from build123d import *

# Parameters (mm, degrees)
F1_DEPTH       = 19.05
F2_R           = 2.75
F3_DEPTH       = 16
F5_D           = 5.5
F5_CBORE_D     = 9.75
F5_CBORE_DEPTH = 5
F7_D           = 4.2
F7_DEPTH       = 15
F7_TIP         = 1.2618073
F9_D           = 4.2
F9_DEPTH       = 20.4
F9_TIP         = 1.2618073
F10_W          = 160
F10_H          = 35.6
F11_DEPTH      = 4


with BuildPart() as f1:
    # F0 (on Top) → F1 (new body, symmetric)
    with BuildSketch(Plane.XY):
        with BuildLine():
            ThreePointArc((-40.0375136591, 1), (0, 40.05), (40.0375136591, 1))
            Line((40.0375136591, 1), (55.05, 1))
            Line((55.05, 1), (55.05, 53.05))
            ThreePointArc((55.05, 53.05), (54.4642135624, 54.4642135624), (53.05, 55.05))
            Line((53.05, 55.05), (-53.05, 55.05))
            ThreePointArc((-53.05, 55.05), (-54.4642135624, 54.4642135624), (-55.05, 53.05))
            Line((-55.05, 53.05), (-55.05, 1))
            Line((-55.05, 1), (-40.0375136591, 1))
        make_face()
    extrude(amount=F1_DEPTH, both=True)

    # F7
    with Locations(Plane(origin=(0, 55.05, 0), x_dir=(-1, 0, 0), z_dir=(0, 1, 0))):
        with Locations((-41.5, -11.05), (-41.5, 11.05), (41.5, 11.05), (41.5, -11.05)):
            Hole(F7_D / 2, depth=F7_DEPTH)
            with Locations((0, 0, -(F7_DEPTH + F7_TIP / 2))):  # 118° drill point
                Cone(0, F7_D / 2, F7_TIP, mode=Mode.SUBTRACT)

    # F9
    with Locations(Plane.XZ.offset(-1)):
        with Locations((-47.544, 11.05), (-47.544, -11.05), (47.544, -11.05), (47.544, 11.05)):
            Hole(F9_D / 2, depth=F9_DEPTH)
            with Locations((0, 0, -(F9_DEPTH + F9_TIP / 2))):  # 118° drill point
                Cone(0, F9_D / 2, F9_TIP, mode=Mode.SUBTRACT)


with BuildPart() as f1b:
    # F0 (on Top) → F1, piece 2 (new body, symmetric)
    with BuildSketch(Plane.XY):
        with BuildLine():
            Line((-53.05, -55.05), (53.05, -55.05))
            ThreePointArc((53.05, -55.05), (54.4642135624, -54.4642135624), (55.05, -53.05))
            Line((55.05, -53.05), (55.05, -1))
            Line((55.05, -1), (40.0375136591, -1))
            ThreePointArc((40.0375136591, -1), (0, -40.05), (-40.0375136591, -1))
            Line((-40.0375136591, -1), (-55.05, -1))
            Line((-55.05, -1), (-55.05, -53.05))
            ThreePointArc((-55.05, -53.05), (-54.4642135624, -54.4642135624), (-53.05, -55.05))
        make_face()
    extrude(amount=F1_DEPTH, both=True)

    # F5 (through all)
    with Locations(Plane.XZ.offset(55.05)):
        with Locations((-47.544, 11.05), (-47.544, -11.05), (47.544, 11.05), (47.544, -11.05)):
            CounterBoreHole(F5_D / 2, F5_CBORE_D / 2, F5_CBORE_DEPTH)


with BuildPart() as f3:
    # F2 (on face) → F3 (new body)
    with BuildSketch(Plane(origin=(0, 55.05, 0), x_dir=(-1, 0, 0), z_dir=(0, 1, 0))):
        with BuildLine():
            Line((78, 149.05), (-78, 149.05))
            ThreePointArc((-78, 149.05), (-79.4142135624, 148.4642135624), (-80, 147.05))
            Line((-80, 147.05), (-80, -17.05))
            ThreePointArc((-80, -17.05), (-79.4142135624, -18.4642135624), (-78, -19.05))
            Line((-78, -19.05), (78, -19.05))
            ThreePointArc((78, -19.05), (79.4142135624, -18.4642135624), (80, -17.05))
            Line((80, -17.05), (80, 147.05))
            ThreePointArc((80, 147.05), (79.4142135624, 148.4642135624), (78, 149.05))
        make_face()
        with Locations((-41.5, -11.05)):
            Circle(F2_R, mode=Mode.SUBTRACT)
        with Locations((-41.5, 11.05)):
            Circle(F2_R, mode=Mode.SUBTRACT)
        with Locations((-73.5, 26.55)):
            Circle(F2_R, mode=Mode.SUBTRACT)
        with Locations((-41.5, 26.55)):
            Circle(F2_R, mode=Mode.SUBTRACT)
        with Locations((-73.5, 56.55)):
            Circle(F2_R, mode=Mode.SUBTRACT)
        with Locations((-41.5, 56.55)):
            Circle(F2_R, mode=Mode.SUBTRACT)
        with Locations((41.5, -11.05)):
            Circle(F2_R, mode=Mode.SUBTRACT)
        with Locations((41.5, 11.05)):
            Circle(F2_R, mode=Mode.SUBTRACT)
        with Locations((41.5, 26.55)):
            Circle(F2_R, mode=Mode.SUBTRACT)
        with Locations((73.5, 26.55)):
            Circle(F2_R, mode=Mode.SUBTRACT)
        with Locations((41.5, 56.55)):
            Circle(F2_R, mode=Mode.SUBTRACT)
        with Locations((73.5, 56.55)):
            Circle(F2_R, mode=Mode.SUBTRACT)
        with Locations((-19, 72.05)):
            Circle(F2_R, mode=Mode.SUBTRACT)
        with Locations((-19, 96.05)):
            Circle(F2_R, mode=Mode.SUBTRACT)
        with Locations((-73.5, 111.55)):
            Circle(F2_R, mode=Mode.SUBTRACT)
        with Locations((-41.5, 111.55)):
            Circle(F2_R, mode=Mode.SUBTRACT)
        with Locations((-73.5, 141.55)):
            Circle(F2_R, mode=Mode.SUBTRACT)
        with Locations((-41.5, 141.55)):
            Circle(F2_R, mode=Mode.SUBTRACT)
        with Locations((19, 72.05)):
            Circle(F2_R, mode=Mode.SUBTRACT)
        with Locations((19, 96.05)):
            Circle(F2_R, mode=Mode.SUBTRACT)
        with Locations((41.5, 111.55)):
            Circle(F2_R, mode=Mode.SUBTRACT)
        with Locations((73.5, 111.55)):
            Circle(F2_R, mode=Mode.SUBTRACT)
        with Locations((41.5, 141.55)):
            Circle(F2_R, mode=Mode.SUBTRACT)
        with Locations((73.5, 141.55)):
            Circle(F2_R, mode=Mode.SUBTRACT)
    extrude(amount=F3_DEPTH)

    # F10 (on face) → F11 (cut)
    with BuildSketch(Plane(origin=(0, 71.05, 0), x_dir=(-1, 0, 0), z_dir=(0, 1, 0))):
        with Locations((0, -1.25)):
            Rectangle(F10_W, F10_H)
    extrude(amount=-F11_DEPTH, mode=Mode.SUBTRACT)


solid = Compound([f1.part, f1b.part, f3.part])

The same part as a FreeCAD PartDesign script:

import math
import FreeCAD as App
import Part
import Sketcher
from FreeCAD import Vector
Q = App.Units.Quantity

doc = App.newDocument("Part")
body = doc.addObject("PartDesign::Body", "Body")

sketch1 = body.newObject("Sketcher::SketchObject", "Sketch")
sketch1.AttachmentSupport = (doc.getObject("XY_Plane"), [""])
sketch1.MapMode = "FlatFace"
sketch1.addGeometry([
    Part.ArcOfCircle(Part.Circle(Vector(0, 0, 0), Vector(0, 0, 1), 40), math.radians(1), math.radians(179)),
    Part.LineSegment(Vector(40, 1, 0), Vector(55, 1, 0)),
    Part.LineSegment(Vector(55, 1, 0), Vector(55, 53, 0)),
    Part.ArcOfCircle(Part.Circle(Vector(53, 53, 0), Vector(0, 0, 1), 2), math.radians(0), math.radians(90)),
    Part.LineSegment(Vector(53, 55, 0), Vector(-53, 55, 0)),
    Part.ArcOfCircle(Part.Circle(Vector(-53, 53, 0), Vector(0, 0, 1), 2), math.radians(90), math.radians(180)),
    Part.LineSegment(Vector(-55, 53, 0), Vector(-55, 1, 0)),
    Part.LineSegment(Vector(-55, 1, 0), Vector(-40, 1, 0)),
], False)
sketch1.addConstraint([
    Sketcher.Constraint("Coincident", 0, 1, 1, 1),
    Sketcher.Constraint("Coincident", 1, 2, 2, 1),
    Sketcher.Constraint("Tangent", 2, 2, 3, 1),
    Sketcher.Constraint("Tangent", 3, 2, 4, 1),
    Sketcher.Constraint("Tangent", 4, 2, 5, 1),
    Sketcher.Constraint("Tangent", 5, 2, 6, 1),
    Sketcher.Constraint("Coincident", 6, 2, 7, 1),
    Sketcher.Constraint("Coincident", 7, 2, 0, 2),
    Sketcher.Constraint("Horizontal", 1),
    Sketcher.Constraint("Vertical", 2),
    Sketcher.Constraint("Horizontal", 4),
    Sketcher.Constraint("Vertical", 6),
    Sketcher.Constraint("Horizontal", 7),
    Sketcher.Constraint("Coincident", 0, 3, -1, 1),
    Sketcher.Constraint("Equal", 3, 5),
    Sketcher.Constraint("Symmetric", 1, 2, 6, 2, -2),
    Sketcher.Constraint("Radius", 3, Q("2 mm")),
    Sketcher.Constraint("Radius", 0, Q("40.05 mm")),
    Sketcher.Constraint("DistanceX", 4, 2, 4, 1, Q("106.1 mm")),
    Sketcher.Constraint("DistanceY", -1, 1, 0, 1, Q("1 mm")),
    Sketcher.Constraint("DistanceY", 2, 1, 2, 2, Q("52.05 mm")),
])
pad1 = body.newObject("PartDesign::Pad", "Pad")
pad1.Profile = sketch1
pad1.Length = 38.1
pad1.Midplane = True

sketch2 = body.newObject("Sketcher::SketchObject", "Sketch001")
sketch2.AttachmentSupport = (doc.getObject("XZ_Plane"), [""])
sketch2.MapMode = "FlatFace"
sketch2.AttachmentOffset = App.Placement(Vector(0, 0, -55.05), App.Rotation())
sketch2.addGeometry([
    Part.Circle(Vector(41.5, -11.1, 0), Vector(0, 0, 1), 2.1),
    Part.Circle(Vector(41.5, 11.1, 0), Vector(0, 0, 1), 2.1),
    Part.Circle(Vector(-41.5, 11.1, 0), Vector(0, 0, 1), 2.1),
    Part.Circle(Vector(-41.5, -11.1, 0), Vector(0, 0, 1), 2.1),
], False)
sketch2.addConstraint([
    Sketcher.Constraint("Equal", 0, 1),
    Sketcher.Constraint("Equal", 1, 2),
    Sketcher.Constraint("Equal", 2, 3),
    Sketcher.Constraint("Symmetric", 0, 3, 2, 3, -1, 1),
    Sketcher.Constraint("Symmetric", 1, 3, 3, 3, -1, 1),
    Sketcher.Constraint("Symmetric", 1, 3, 2, 3, -2),
    Sketcher.Constraint("Diameter", 0, Q("4.2 mm")),
    Sketcher.Constraint("DistanceX", 2, 3, 1, 3, Q("83 mm")),
    Sketcher.Constraint("DistanceY", 0, 3, 1, 3, Q("22.1 mm")),
])
doc.recompute()
hole = body.newObject("PartDesign::Hole", "Hole")
hole.Profile = sketch2
hole.ThreadType = "None"
hole.Diameter = 4.2
hole.DepthType = "Dimension"
hole.Depth = 15
hole.DrillPoint = "Angled"
hole.DrillPointAngle = 118
hole.Reversed = True

sketch3 = body.newObject("Sketcher::SketchObject", "Sketch002")
sketch3.AttachmentSupport = (doc.getObject("XZ_Plane"), [""])
sketch3.MapMode = "FlatFace"
sketch3.AttachmentOffset = App.Placement(Vector(0, 0, -1), App.Rotation())
sketch3.addGeometry([
    Part.Circle(Vector(-47.5, 11.1, 0), Vector(0, 0, 1), 2.1),
    Part.Circle(Vector(-47.5, -11.1, 0), Vector(0, 0, 1), 2.1),
    Part.Circle(Vector(47.5, -11.1, 0), Vector(0, 0, 1), 2.1),
    Part.Circle(Vector(47.5, 11.1, 0), Vector(0, 0, 1), 2.1),
], False)
sketch3.addConstraint([
    Sketcher.Constraint("Equal", 0, 1),
    Sketcher.Constraint("Equal", 1, 2),
    Sketcher.Constraint("Equal", 2, 3),
    Sketcher.Constraint("Symmetric", 0, 3, 2, 3, -1, 1),
    Sketcher.Constraint("Symmetric", 1, 3, 3, 3, -1, 1),
    Sketcher.Constraint("Symmetric", 1, 3, 2, 3, -2),
    Sketcher.Constraint("Diameter", 0, Q("4.2 mm")),
    Sketcher.Constraint("DistanceY", 1, 3, 0, 3, Q("22.1 mm")),
    Sketcher.Constraint("DistanceX", 0, 3, -1, 1, Q("47.544 mm")),
])
doc.recompute()
hole2 = body.newObject("PartDesign::Hole", "Hole001")
hole2.Profile = sketch3
hole2.ThreadType = "None"
hole2.Diameter = 4.2
hole2.DepthType = "Dimension"
hole2.Depth = 20.4
hole2.DrillPoint = "Angled"
hole2.DrillPointAngle = 118
body2 = doc.addObject("PartDesign::Body", "Body001")

sketch4 = body2.newObject("Sketcher::SketchObject", "Sketch003")
sketch4.AttachmentSupport = (doc.getObject("XY_Plane001"), [""])
sketch4.MapMode = "FlatFace"
sketch4.addGeometry([
    Part.LineSegment(Vector(-53, -55, 0), Vector(53, -55, 0)),
    Part.ArcOfCircle(Part.Circle(Vector(53, -53, 0), Vector(0, 0, 1), 2), math.radians(-90), math.radians(0)),
    Part.LineSegment(Vector(55, -53, 0), Vector(55, -1, 0)),
    Part.LineSegment(Vector(55, -1, 0), Vector(40, -1, 0)),
    Part.ArcOfCircle(Part.Circle(Vector(0, 0, 0), Vector(0, 0, 1), 40), math.radians(-179), math.radians(-1)),
    Part.LineSegment(Vector(-40, -1, 0), Vector(-55, -1, 0)),
    Part.LineSegment(Vector(-55, -1, 0), Vector(-55, -53, 0)),
    Part.ArcOfCircle(Part.Circle(Vector(-53, -53, 0), Vector(0, 0, 1), 2), math.radians(180), math.radians(270)),
], False)
sketch4.addConstraint([
    Sketcher.Constraint("Tangent", 0, 2, 1, 1),
    Sketcher.Constraint("Tangent", 1, 2, 2, 1),
    Sketcher.Constraint("Coincident", 2, 2, 3, 1),
    Sketcher.Constraint("Coincident", 3, 2, 4, 2),
    Sketcher.Constraint("Coincident", 4, 1, 5, 1),
    Sketcher.Constraint("Coincident", 5, 2, 6, 1),
    Sketcher.Constraint("Tangent", 6, 2, 7, 1),
    Sketcher.Constraint("Tangent", 7, 2, 0, 1),
    Sketcher.Constraint("Horizontal", 0),
    Sketcher.Constraint("Vertical", 2),
    Sketcher.Constraint("Horizontal", 3),
    Sketcher.Constraint("Horizontal", 5),
    Sketcher.Constraint("Vertical", 6),
    Sketcher.Constraint("Coincident", 4, 3, -1, 1),
    Sketcher.Constraint("Equal", 1, 7),
    Sketcher.Constraint("Symmetric", 2, 2, 5, 2, -2),
    Sketcher.Constraint("Radius", 1, Q("2 mm")),
    Sketcher.Constraint("Radius", 4, Q("40.05 mm")),
    Sketcher.Constraint("DistanceX", 0, 1, 0, 2, Q("106.1 mm")),
    Sketcher.Constraint("DistanceY", 2, 2, -1, 1, Q("1 mm")),
    Sketcher.Constraint("DistanceY", 2, 1, 2, 2, Q("52.05 mm")),
])
pad2 = body2.newObject("PartDesign::Pad", "Pad001")
pad2.Profile = sketch4
pad2.Length = 38.1
pad2.Midplane = True

sketch5 = body2.newObject("Sketcher::SketchObject", "Sketch004")
sketch5.AttachmentSupport = (doc.getObject("XZ_Plane001"), [""])
sketch5.MapMode = "FlatFace"
sketch5.AttachmentOffset = App.Placement(Vector(0, 0, 55.05), App.Rotation())
sketch5.addGeometry([
    Part.Circle(Vector(-47.5, 11.1, 0), Vector(0, 0, 1), 2.8),
    Part.Circle(Vector(-47.5, -11.1, 0), Vector(0, 0, 1), 2.8),
    Part.Circle(Vector(47.5, 11.1, 0), Vector(0, 0, 1), 2.8),
    Part.Circle(Vector(47.5, -11.1, 0), Vector(0, 0, 1), 2.8),
], False)
sketch5.addConstraint([
    Sketcher.Constraint("Equal", 0, 1),
    Sketcher.Constraint("Equal", 1, 2),
    Sketcher.Constraint("Equal", 2, 3),
    Sketcher.Constraint("Symmetric", 1, 3, 2, 3, -1, 1),
    Sketcher.Constraint("Symmetric", 0, 3, 3, 3, -1, 1),
    Sketcher.Constraint("Symmetric", 0, 3, 2, 3, -2),
    Sketcher.Constraint("Diameter", 0, Q("5.5 mm")),
    Sketcher.Constraint("DistanceY", 1, 3, 0, 3, Q("22.1 mm")),
    Sketcher.Constraint("DistanceX", 0, 3, -1, 1, Q("47.544 mm")),
])
doc.recompute()
hole3 = body2.newObject("PartDesign::Hole", "Hole002")
hole3.Profile = sketch5
hole3.ThreadType = "None"
hole3.Diameter = 5.5
hole3.DepthType = "ThroughAll"
hole3.HoleCutType = "Counterbore"
hole3.HoleCutDiameter = 9.75
hole3.HoleCutDepth = 5
body3 = doc.addObject("PartDesign::Body", "Body002")

sketch6 = body3.newObject("Sketcher::SketchObject", "Sketch005")
sketch6.AttachmentSupport = (doc.getObject("XZ_Plane002"), [""])
sketch6.MapMode = "FlatFace"
sketch6.AttachmentOffset = App.Placement(Vector(0, 0, -55.05), App.Rotation())
sketch6.addGeometry([
    Part.LineSegment(Vector(-78, 149.1, 0), Vector(78, 149.1, 0)),
    Part.ArcOfCircle(Part.Circle(Vector(78, 147.1, 0), Vector(0, 0, 1), 2), math.radians(0), math.radians(90)),
    Part.LineSegment(Vector(80, 147.1, 0), Vector(80, -17.1, 0)),
    Part.ArcOfCircle(Part.Circle(Vector(78, -17.1, 0), Vector(0, 0, 1), 2), math.radians(-90), math.radians(0)),
    Part.LineSegment(Vector(78, -19.1, 0), Vector(-78, -19.1, 0)),
    Part.ArcOfCircle(Part.Circle(Vector(-78, -17.1, 0), Vector(0, 0, 1), 2), math.radians(180), math.radians(270)),
    Part.LineSegment(Vector(-80, -17.1, 0), Vector(-80, 147.1, 0)),
    Part.ArcOfCircle(Part.Circle(Vector(-78, 147.1, 0), Vector(0, 0, 1), 2), math.radians(90), math.radians(180)),
    Part.Circle(Vector(41.5, -11.1, 0), Vector(0, 0, 1), 2.8),
    Part.Circle(Vector(41.5, 11.1, 0), Vector(0, 0, 1), 2.8),
    Part.Circle(Vector(73.5, 26.6, 0), Vector(0, 0, 1), 2.8),
    Part.Circle(Vector(41.5, 26.6, 0), Vector(0, 0, 1), 2.8),
    Part.Circle(Vector(73.5, 56.5, 0), Vector(0, 0, 1), 2.8),
    Part.Circle(Vector(41.5, 56.5, 0), Vector(0, 0, 1), 2.8),
    Part.Circle(Vector(-41.5, -11.1, 0), Vector(0, 0, 1), 2.8),
    Part.Circle(Vector(-41.5, 11.1, 0), Vector(0, 0, 1), 2.8),
    Part.Circle(Vector(-41.5, 26.6, 0), Vector(0, 0, 1), 2.8),
    Part.Circle(Vector(-73.5, 26.6, 0), Vector(0, 0, 1), 2.8),
    Part.Circle(Vector(-41.5, 56.5, 0), Vector(0, 0, 1), 2.8),
    Part.Circle(Vector(-73.5, 56.5, 0), Vector(0, 0, 1), 2.8),
    Part.Circle(Vector(19, 72, 0), Vector(0, 0, 1), 2.8),
    Part.Circle(Vector(19, 96, 0), Vector(0, 0, 1), 2.8),
    Part.Circle(Vector(73.5, 111.5, 0), Vector(0, 0, 1), 2.8),
    Part.Circle(Vector(41.5, 111.5, 0), Vector(0, 0, 1), 2.8),
    Part.Circle(Vector(73.5, 141.6, 0), Vector(0, 0, 1), 2.8),
    Part.Circle(Vector(41.5, 141.6, 0), Vector(0, 0, 1), 2.8),
    Part.Circle(Vector(-19, 72, 0), Vector(0, 0, 1), 2.8),
    Part.Circle(Vector(-19, 96, 0), Vector(0, 0, 1), 2.8),
    Part.Circle(Vector(-41.5, 111.5, 0), Vector(0, 0, 1), 2.8),
    Part.Circle(Vector(-73.5, 111.5, 0), Vector(0, 0, 1), 2.8),
    Part.Circle(Vector(-41.5, 141.6, 0), Vector(0, 0, 1), 2.8),
    Part.Circle(Vector(-73.5, 141.6, 0), Vector(0, 0, 1), 2.8),
], False)
sketch6.addConstraint([
    Sketcher.Constraint("Tangent", 0, 2, 1, 2),
    Sketcher.Constraint("Tangent", 1, 1, 2, 1),
    Sketcher.Constraint("Tangent", 2, 2, 3, 2),
    Sketcher.Constraint("Tangent", 3, 1, 4, 1),
    Sketcher.Constraint("Tangent", 4, 2, 5, 2),
    Sketcher.Constraint("Tangent", 5, 1, 6, 1),
    Sketcher.Constraint("Tangent", 6, 2, 7, 2),
    Sketcher.Constraint("Tangent", 7, 1, 0, 1),
    Sketcher.Constraint("Horizontal", 0),
    Sketcher.Constraint("Vertical", 2),
    Sketcher.Constraint("Horizontal", 4),
    Sketcher.Constraint("Vertical", 6),
    Sketcher.Constraint("Equal", 1, 3),
    Sketcher.Constraint("Equal", 3, 5),
    Sketcher.Constraint("Equal", 5, 7),
    Sketcher.Constraint("Equal", 8, 9),
    Sketcher.Constraint("Equal", 9, 10),
    Sketcher.Constraint("Equal", 10, 11),
    Sketcher.Constraint("Equal", 11, 12),
    Sketcher.Constraint("Equal", 12, 13),
    Sketcher.Constraint("Equal", 13, 14),
    Sketcher.Constraint("Equal", 14, 15),
    Sketcher.Constraint("Equal", 15, 16),
    Sketcher.Constraint("Equal", 16, 17),
    Sketcher.Constraint("Equal", 17, 18),
    Sketcher.Constraint("Equal", 18, 19),
    Sketcher.Constraint("Equal", 19, 20),
    Sketcher.Constraint("Equal", 20, 21),
    Sketcher.Constraint("Equal", 21, 22),
    Sketcher.Constraint("Equal", 22, 23),
    Sketcher.Constraint("Equal", 23, 24),
    Sketcher.Constraint("Equal", 24, 25),
    Sketcher.Constraint("Equal", 25, 26),
    Sketcher.Constraint("Equal", 26, 27),
    Sketcher.Constraint("Equal", 27, 28),
    Sketcher.Constraint("Equal", 28, 29),
    Sketcher.Constraint("Equal", 29, 30),
    Sketcher.Constraint("Equal", 30, 31),
    Sketcher.Constraint("Symmetric", 9, 3, 14, 3, -1, 1),
    Sketcher.Constraint("Symmetric", 8, 3, 15, 3, -1, 1),
    Sketcher.Constraint("Symmetric", 8, 3, 14, 3, -2),
    Sketcher.Constraint("Symmetric", 11, 3, 16, 3, -2),
    Sketcher.Constraint("Symmetric", 10, 3, 17, 3, -2),
    Sketcher.Constraint("Symmetric", 13, 3, 18, 3, -2),
    Sketcher.Constraint("Symmetric", 12, 3, 19, 3, -2),
    Sketcher.Constraint("Symmetric", 20, 3, 26, 3, -2),
    Sketcher.Constraint("Symmetric", 21, 3, 27, 3, -2),
    Sketcher.Constraint("Symmetric", 23, 3, 28, 3, -2),
    Sketcher.Constraint("Symmetric", 22, 3, 29, 3, -2),
    Sketcher.Constraint("Symmetric", 25, 3, 30, 3, -2),
    Sketcher.Constraint("Symmetric", 24, 3, 31, 3, -2),
    Sketcher.Constraint("Horizontal", 10, 3, 11, 3),
    Sketcher.Constraint("Horizontal", 12, 3, 13, 3),
    Sketcher.Constraint("Horizontal", 22, 3, 23, 3),
    Sketcher.Constraint("Horizontal", 24, 3, 25, 3),
    Sketcher.Constraint("Vertical", 9, 3, 11, 3),
    Sketcher.Constraint("Vertical", 10, 3, 12, 3),
    Sketcher.Constraint("Vertical", 11, 3, 13, 3),
    Sketcher.Constraint("Vertical", 20, 3, 21, 3),
    Sketcher.Constraint("Vertical", 12, 3, 22, 3),
    Sketcher.Constraint("Vertical", 13, 3, 23, 3),
    Sketcher.Constraint("Vertical", 22, 3, 24, 3),
    Sketcher.Constraint("Vertical", 23, 3, 25, 3),
    Sketcher.Constraint("Radius", 1, Q("2 mm")),
    Sketcher.Constraint("Diameter", 8, Q("5.5 mm")),
    Sketcher.Constraint("DistanceX", 0, 1, 0, 2, Q("156 mm")),
    Sketcher.Constraint("DistanceY", 2, 2, 2, 1, Q("164.1 mm")),
    Sketcher.Constraint("DistanceX", -1, 1, 1, 3, Q("78 mm")),
    Sketcher.Constraint("DistanceX", -1, 1, 20, 3, Q("19 mm")),
    Sketcher.Constraint("DistanceY", 3, 3, 8, 3, Q("6 mm")),
    Sketcher.Constraint("DistanceY", 9, 3, 1, 3, Q("136 mm")),
    Sketcher.Constraint("DistanceX", 9, 3, 10, 3, Q("32 mm")),
    Sketcher.Constraint("DistanceY", 10, 3, 12, 3, Q("30 mm")),
    Sketcher.Constraint("DistanceX", 14, 3, 8, 3, Q("83 mm")),
    Sketcher.Constraint("DistanceY", 9, 3, 20, 3, Q("61 mm")),
    Sketcher.Constraint("DistanceY", 20, 3, 21, 3, Q("24 mm")),
    Sketcher.Constraint("DistanceY", 12, 3, 22, 3, Q("55 mm")),
    Sketcher.Constraint("DistanceY", 22, 3, 24, 3, Q("30 mm")),
    Sketcher.Constraint("DistanceY", 9, 3, 10, 3, Q("15.5 mm")),
])
pad3 = body3.newObject("PartDesign::Pad", "Pad002")
pad3.Profile = sketch6
pad3.Length = 16
pad3.Reversed = True

sketch7 = body3.newObject("Sketcher::SketchObject", "Sketch006")
sketch7.AttachmentSupport = (doc.getObject("XZ_Plane002"), [""])
sketch7.MapMode = "FlatFace"
sketch7.AttachmentOffset = App.Placement(Vector(0, 0, -71.05), App.Rotation())
sketch7.addGeometry([
    Part.LineSegment(Vector(80, 17, 0), Vector(80, -19, 0)),
    Part.LineSegment(Vector(80, -19, 0), Vector(-80, -19, 0)),
    Part.LineSegment(Vector(-80, -19, 0), Vector(-80, 17, 0)),
    Part.LineSegment(Vector(-80, 17, 0), Vector(80, 17, 0)),
], False)
sketch7.addConstraint([
    Sketcher.Constraint("Coincident", 0, 2, 1, 1),
    Sketcher.Constraint("Coincident", 1, 2, 2, 1),
    Sketcher.Constraint("Coincident", 2, 2, 3, 1),
    Sketcher.Constraint("Coincident", 3, 2, 0, 1),
    Sketcher.Constraint("Vertical", 0),
    Sketcher.Constraint("Horizontal", 1),
    Sketcher.Constraint("Vertical", 2),
    Sketcher.Constraint("Horizontal", 3),
    Sketcher.Constraint("DistanceX", 1, 2, 1, 1, Q("160 mm")),
    Sketcher.Constraint("DistanceY", 0, 2, 0, 1, Q("35.6 mm")),
    Sketcher.Constraint("DistanceX", -1, 1, 0, 2, Q("80 mm")),
    Sketcher.Constraint("DistanceY", 0, 2, -1, 1, Q("19.05 mm")),
])
pocket1 = body3.newObject("PartDesign::Pocket", "Pocket")
pocket1.Profile = sketch7
pocket1.Length = 4
pocket1.Reversed = True

doc.recompute()
